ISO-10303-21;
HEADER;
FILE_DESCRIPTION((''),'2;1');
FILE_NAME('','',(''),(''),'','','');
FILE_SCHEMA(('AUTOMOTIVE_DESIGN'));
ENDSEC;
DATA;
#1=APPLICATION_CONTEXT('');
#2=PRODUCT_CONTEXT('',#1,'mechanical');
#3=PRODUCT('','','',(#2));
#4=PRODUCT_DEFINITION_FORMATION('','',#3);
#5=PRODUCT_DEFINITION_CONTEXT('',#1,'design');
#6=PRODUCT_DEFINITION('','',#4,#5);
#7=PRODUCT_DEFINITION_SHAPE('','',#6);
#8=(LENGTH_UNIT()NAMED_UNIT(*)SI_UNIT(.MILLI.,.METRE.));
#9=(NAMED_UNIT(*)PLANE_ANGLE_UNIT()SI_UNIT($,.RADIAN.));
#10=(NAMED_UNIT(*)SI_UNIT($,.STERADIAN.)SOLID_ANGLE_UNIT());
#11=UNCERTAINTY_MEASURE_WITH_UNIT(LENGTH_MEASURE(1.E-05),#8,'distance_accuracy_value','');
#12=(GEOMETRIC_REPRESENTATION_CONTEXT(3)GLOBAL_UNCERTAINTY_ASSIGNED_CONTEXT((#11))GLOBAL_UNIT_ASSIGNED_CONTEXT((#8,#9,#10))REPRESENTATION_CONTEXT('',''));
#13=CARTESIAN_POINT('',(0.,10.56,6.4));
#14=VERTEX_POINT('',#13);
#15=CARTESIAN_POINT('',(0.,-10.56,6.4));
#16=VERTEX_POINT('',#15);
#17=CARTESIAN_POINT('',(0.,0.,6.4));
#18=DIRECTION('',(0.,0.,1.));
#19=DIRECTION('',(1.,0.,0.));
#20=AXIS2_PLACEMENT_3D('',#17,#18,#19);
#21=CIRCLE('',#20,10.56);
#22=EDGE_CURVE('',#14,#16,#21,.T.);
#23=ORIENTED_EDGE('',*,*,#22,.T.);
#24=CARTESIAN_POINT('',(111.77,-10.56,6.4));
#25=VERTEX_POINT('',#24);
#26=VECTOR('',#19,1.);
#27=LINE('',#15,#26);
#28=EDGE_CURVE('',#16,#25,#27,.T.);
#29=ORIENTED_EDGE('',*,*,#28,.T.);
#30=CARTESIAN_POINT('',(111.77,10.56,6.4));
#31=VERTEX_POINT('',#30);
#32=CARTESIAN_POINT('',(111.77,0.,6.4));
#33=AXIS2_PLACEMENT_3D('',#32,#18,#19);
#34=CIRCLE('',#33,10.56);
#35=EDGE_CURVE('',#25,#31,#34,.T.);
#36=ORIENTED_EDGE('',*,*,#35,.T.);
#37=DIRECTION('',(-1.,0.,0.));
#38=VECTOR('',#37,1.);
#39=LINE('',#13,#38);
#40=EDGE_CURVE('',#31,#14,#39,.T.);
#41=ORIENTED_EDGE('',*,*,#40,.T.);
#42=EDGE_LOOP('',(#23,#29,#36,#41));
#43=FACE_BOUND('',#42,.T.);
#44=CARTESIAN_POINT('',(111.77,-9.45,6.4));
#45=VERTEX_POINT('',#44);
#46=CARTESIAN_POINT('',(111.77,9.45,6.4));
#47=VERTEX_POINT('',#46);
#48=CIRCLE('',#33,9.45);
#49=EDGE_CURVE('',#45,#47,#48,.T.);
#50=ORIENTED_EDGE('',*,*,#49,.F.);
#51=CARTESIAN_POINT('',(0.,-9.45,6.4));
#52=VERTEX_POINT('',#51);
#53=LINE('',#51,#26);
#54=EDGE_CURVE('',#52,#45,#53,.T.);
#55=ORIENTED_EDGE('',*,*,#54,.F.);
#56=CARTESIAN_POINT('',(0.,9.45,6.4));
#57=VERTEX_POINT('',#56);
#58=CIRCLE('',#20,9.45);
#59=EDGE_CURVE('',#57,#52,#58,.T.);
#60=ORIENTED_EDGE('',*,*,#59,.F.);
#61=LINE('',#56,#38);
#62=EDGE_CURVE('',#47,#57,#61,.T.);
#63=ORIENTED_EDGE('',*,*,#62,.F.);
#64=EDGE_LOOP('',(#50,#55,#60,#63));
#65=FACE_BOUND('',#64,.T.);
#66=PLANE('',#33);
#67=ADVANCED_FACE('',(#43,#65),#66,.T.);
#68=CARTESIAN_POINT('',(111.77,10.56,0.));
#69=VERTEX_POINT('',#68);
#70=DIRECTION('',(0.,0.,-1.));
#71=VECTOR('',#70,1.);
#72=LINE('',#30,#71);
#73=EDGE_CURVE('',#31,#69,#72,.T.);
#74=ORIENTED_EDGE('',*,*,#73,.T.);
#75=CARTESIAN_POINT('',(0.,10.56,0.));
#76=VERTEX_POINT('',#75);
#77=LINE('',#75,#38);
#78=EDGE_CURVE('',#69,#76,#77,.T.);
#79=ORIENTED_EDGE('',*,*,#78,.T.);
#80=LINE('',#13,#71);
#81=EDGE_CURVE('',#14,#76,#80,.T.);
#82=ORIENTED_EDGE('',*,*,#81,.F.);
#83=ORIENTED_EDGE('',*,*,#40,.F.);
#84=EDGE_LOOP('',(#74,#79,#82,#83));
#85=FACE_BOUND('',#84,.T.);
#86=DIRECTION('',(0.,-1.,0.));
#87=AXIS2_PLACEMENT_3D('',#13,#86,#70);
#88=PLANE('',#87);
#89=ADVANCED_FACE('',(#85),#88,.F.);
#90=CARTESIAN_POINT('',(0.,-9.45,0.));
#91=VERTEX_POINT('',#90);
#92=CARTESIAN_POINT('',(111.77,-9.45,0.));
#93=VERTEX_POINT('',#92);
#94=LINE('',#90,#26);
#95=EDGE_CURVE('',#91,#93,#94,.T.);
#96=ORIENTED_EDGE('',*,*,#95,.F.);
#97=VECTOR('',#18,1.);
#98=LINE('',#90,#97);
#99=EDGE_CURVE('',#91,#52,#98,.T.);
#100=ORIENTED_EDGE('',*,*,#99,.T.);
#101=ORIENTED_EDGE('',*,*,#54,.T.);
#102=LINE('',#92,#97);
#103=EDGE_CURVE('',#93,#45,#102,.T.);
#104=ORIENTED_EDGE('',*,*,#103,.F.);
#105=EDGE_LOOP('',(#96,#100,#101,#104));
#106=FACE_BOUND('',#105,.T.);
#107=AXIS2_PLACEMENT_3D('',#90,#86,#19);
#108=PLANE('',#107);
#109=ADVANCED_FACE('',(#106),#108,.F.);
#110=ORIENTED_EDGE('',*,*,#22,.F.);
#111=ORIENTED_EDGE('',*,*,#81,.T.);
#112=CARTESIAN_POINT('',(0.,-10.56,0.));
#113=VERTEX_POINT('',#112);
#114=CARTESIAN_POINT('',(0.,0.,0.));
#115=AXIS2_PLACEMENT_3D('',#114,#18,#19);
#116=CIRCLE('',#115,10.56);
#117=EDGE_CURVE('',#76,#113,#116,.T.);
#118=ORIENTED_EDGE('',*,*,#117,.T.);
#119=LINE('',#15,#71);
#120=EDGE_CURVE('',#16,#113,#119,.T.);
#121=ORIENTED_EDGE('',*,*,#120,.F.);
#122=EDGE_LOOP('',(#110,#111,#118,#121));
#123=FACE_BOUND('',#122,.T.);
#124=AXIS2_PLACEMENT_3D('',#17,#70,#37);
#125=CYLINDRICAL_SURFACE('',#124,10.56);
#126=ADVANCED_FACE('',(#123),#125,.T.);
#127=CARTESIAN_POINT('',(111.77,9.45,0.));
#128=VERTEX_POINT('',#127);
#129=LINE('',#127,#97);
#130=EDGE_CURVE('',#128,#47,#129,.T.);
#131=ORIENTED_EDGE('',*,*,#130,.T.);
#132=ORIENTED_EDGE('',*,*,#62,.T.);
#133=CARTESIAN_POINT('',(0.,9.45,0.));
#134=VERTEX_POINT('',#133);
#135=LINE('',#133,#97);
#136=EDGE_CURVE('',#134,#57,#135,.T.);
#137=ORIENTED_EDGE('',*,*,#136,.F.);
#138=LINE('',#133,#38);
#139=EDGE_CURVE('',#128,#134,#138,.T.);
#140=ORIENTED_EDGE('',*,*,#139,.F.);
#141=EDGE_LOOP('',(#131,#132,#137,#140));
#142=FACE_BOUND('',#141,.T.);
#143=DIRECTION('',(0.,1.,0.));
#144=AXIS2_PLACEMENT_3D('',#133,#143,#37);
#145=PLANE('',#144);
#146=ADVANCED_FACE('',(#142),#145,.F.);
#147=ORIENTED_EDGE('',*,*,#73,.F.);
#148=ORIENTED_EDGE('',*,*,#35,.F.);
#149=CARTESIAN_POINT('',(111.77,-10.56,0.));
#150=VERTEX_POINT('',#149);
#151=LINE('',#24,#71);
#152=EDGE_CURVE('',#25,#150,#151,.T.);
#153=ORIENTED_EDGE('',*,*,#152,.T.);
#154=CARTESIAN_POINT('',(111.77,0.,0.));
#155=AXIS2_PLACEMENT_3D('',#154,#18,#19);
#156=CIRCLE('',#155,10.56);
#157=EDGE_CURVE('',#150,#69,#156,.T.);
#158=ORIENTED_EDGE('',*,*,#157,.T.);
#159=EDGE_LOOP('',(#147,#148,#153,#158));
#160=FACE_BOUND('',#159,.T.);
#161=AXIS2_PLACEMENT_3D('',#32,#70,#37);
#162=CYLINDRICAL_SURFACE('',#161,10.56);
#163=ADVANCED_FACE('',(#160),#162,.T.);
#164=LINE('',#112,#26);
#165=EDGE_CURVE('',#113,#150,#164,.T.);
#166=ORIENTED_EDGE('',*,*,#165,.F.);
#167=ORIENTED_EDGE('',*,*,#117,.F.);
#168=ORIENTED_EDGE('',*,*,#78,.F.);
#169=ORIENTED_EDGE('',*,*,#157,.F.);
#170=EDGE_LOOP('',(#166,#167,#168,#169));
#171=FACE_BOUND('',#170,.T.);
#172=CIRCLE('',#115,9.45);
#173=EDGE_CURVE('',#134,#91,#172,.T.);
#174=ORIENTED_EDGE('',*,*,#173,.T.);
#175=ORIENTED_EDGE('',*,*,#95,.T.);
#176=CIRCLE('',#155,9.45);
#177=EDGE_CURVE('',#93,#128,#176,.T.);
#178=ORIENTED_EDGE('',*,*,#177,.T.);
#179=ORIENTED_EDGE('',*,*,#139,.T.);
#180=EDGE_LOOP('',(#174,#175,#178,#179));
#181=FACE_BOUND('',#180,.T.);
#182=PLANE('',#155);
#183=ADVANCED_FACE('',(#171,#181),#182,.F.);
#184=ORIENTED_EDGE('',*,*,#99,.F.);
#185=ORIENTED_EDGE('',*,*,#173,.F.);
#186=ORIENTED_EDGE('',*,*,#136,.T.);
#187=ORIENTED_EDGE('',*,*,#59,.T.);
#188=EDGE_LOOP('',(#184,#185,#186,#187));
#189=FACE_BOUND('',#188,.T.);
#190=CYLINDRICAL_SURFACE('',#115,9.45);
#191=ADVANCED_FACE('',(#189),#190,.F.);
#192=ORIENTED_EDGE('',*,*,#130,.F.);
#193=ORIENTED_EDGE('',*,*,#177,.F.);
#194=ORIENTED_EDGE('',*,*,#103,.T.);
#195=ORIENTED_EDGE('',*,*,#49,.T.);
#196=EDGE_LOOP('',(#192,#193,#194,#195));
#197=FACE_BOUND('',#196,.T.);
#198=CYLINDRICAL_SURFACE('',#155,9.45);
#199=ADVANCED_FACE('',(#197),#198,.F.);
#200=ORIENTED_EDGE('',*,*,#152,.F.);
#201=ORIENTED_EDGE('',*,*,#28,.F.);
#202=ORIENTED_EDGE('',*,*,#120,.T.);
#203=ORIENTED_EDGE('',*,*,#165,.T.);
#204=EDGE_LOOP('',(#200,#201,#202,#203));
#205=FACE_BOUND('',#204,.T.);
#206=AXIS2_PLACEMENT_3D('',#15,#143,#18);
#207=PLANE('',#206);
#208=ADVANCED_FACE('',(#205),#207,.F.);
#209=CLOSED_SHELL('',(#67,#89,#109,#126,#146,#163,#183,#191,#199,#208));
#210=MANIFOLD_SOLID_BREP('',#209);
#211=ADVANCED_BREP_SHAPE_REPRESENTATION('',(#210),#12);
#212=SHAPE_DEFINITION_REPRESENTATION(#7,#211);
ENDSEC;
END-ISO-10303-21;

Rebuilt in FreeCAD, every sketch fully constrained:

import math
import FreeCAD as App
import Part
import Sketcher
from FreeCAD import Vector

doc = App.newDocument("Part")
body = doc.addObject("PartDesign::Body", "Body")

sketch1 = body.newObject("Sketcher::SketchObject", "Sketch")
sketch1.AttachmentSupport = (doc.getObject("XY_Plane"), [""])
sketch1.MapMode = "FlatFace"
sketch1.addGeometry([
    Part.LineSegment(Vector(111.77, 10.56, 0), Vector(0, 10.56, 0)),
    Part.ArcOfCircle(Part.Circle(Vector(0, 0, 0), Vector(0, 0, 1), 10.56), math.radians(90), math.radians(270)),
    Part.LineSegment(Vector(0, -10.56, 0), Vector(111.77, -10.56, 0)),
    Part.ArcOfCircle(Part.Circle(Vector(111.77, 0, 0), Vector(0, 0, 1), 10.56), math.radians(-90), math.radians(90)),
], False)
sketch1.addConstraint([
    Sketcher.Constraint("Tangent", 0, 2, 1, 1),
    Sketcher.Constraint("Tangent", 1, 2, 2, 1),
    Sketcher.Constraint("Tangent", 2, 2, 3, 1),
    Sketcher.Constraint("Tangent", 3, 2, 0, 1),
    Sketcher.Constraint("Horizontal", 0),
    Sketcher.Constraint("Horizontal", 2),
    Sketcher.Constraint("Coincident", 1, 3, -1, 1),
    Sketcher.Constraint("Radius", 1, 10.56),
    Sketcher.Constraint("DistanceX", 0, 2, 0, 1, 111.77),
])
pad1 = body.newObject("PartDesign::Pad", "Pad")
pad1.Profile = sketch1
pad1.Length = 6.4

sketch2 = body.newObject("Sketcher::SketchObject", "Sketch001")
sketch2.AttachmentSupport = (doc.getObject("XY_Plane"), [""])
sketch2.MapMode = "FlatFace"
sketch2.AttachmentOffset = App.Placement(Vector(0, 0, 6.4), App.Rotation())
sketch2.addGeometry([
    Part.LineSegment(Vector(111.77, 9.45, 0), Vector(0, 9.45, 0)),
    Part.ArcOfCircle(Part.Circle(Vector(0, 0, 0), Vector(0, 0, 1), 9.45), math.radians(90), math.radians(270)),
    Part.LineSegment(Vector(0, -9.45, 0), Vector(111.77, -9.45, 0)),
    Part.ArcOfCircle(Part.Circle(Vector(111.77, 0, 0), Vector(0, 0, 1), 9.45), math.radians(-90), math.radians(90)),
], False)
sketch2.addConstraint([
    Sketcher.Constraint("Tangent", 0, 2, 1, 1),
    Sketcher.Constraint("Tangent", 1, 2, 2, 1),
    Sketcher.Constraint("Tangent", 2, 2, 3, 1),
    Sketcher.Constraint("Tangent", 3, 2, 0, 1),
    Sketcher.Constraint("Horizontal", 0),
    Sketcher.Constraint("Horizontal", 2),
    Sketcher.Constraint("Coincident", 1, 3, -1, 1),
    Sketcher.Constraint("Radius", 1, 9.45),
    Sketcher.Constraint("DistanceX", 0, 2, 0, 1, 111.77),
])
pocket1 = body.newObject("PartDesign::Pocket", "Pocket")
pocket1.Profile = sketch2
pocket1.Type = "ThroughAll"

doc.recompute()
